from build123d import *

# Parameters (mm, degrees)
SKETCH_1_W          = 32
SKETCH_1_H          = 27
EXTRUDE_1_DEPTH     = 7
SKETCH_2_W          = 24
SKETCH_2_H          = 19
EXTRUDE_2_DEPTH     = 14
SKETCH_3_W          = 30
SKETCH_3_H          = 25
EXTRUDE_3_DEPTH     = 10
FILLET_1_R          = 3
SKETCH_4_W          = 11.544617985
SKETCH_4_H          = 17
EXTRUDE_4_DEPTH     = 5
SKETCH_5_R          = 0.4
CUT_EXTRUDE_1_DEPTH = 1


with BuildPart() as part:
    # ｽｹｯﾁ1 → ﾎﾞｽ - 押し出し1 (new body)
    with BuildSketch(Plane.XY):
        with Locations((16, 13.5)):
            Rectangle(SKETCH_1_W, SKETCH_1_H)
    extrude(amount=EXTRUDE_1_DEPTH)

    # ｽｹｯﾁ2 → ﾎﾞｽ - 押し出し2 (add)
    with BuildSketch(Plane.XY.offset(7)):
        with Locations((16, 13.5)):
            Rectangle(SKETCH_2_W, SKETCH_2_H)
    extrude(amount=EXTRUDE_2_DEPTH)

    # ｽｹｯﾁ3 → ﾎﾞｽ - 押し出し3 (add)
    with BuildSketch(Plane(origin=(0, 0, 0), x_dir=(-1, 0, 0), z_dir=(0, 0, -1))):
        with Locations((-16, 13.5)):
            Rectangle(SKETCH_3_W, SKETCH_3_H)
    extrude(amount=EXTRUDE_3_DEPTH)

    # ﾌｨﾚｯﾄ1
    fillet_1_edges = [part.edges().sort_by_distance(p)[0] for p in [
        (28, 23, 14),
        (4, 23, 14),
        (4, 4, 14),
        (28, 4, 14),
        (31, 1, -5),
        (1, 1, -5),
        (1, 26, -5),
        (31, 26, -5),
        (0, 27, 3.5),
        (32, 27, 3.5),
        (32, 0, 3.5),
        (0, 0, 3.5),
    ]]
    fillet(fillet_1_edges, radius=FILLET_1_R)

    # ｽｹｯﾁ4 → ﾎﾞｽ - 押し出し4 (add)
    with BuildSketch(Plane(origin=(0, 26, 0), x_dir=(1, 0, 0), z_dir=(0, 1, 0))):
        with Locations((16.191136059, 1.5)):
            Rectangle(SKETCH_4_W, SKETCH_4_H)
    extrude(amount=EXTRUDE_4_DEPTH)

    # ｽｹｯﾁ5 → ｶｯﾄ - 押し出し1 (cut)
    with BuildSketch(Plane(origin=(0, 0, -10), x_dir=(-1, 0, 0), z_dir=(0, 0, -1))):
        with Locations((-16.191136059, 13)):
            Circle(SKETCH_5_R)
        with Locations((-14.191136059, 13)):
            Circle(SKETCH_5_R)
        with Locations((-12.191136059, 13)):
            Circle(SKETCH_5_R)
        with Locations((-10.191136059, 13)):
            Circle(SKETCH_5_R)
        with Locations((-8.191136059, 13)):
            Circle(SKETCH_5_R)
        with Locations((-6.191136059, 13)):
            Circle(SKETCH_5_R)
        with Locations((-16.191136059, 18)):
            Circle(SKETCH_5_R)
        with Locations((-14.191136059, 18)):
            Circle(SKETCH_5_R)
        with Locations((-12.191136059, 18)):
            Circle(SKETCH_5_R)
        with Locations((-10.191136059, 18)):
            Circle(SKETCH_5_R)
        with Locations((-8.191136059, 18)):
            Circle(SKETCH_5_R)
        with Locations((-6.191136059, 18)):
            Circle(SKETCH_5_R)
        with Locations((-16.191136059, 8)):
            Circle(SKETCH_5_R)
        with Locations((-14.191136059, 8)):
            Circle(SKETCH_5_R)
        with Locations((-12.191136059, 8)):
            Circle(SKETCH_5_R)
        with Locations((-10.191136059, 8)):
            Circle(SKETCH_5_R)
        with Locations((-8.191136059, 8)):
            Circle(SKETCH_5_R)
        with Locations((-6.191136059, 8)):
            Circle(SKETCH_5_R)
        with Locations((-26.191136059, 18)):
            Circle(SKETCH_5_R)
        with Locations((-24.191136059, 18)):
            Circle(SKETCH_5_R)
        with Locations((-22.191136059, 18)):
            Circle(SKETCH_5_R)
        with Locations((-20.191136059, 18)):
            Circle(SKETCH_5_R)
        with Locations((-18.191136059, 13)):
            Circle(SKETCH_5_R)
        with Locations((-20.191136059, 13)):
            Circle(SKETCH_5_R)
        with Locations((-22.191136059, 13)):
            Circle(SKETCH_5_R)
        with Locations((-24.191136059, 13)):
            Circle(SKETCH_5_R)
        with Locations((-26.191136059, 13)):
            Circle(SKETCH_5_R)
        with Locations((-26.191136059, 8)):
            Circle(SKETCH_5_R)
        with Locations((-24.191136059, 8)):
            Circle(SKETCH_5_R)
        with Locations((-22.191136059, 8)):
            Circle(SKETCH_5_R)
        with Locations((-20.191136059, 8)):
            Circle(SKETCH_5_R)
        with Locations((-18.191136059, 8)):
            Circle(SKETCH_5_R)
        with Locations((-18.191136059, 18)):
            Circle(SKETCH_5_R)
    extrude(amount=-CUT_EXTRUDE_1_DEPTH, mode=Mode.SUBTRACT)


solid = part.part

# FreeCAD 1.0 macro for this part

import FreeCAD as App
import Part
import Sketcher
from FreeCAD import Vector
Q = App.Units.Quantity


def edges_at(feature, points):
    """Names of the edges that pass closest to the given points."""
    edges = feature.Shape.Edges
    near = lambda p: min(range(len(edges)), key=lambda i: edges[i].distToShape(Part.Vertex(*p))[0])
    return sorted({f"Edge{near(p) + 1}" for p in points})

doc = App.newDocument("Part")
body = doc.addObject("PartDesign::Body", "Body")

# Sketch on XY plane
sketch1 = body.newObject("Sketcher::SketchObject", "Sketch")
sketch1.AttachmentSupport = (doc.getObject("XY_Plane"), [""])
sketch1.MapMode = "FlatFace"
sketch1.addGeometry([
    Part.LineSegment(Vector(0, 27, 0), Vector(0, 0, 0)),
    Part.LineSegment(Vector(0, 0, 0), Vector(32, 0, 0)),
    Part.LineSegment(Vector(32, 0, 0), Vector(32, 27, 0)),
    Part.LineSegment(Vector(32, 27, 0), Vector(0, 27, 0)),
], False)
sketch1.addConstraint([
    Sketcher.Constraint("Coincident", 0, 2, 1, 1),
    Sketcher.Constraint("Coincident", 1, 2, 2, 1),
    Sketcher.Constraint("Coincident", 2, 2, 3, 1),
    Sketcher.Constraint("Coincident", 3, 2, 0, 1),
    Sketcher.Constraint("Vertical", 0),
    Sketcher.Constraint("Horizontal", 1),
    Sketcher.Constraint("Vertical", 2),
    Sketcher.Constraint("Horizontal", 3),
    Sketcher.Constraint("Coincident", 0, 2, -1, 1),
    Sketcher.Constraint("DistanceX", 1, 1, 1, 2, Q("32 mm")),
    Sketcher.Constraint("DistanceY", 0, 2, 0, 1, Q("27 mm")),
])
pad1 = body.newObject("PartDesign::Pad", "Pad")
pad1.Profile = sketch1
pad1.Length = 7

# Sketch on XY plane
sketch2 = body.newObject("Sketcher::SketchObject", "Sketch001")
sketch2.AttachmentSupport = (doc.getObject("XY_Plane"), [""])
sketch2.MapMode = "FlatFace"
sketch2.AttachmentOffset = App.Placement(Vector(0, 0, 7), App.Rotation())
sketch2.addGeometry([
    Part.LineSegment(Vector(4, 23, 0), Vector(4, 4, 0)),
    Part.LineSegment(Vector(4, 4, 0), Vector(28, 4, 0)),
    Part.LineSegment(Vector(28, 4, 0), Vector(28, 23, 0)),
    Part.LineSegment(Vector(28, 23, 0), Vector(4, 23, 0)),
], False)
sketch2.addConstraint([
    Sketcher.Constraint("Coincident", 0, 2, 1, 1),
    Sketcher.Constraint("Coincident", 1, 2, 2, 1),
    Sketcher.Constraint("Coincident", 2, 2, 3, 1),
    Sketcher.Constraint("Coincident", 3, 2, 0, 1),
    Sketcher.Constraint("Vertical", 0),
    Sketcher.Constraint("Horizontal", 1),
    Sketcher.Constraint("Vertical", 2),
    Sketcher.Constraint("Horizontal", 3),
    Sketcher.Constraint("DistanceX", 1, 1, 1, 2, Q("24 mm")),
    Sketcher.Constraint("DistanceY", 0, 2, 0, 1, Q("19 mm")),
    Sketcher.Constraint("DistanceX", -1, 1, 0, 2, Q("4 mm")),
    Sketcher.Constraint("DistanceY", -1, 1, 0, 2, Q("4 mm")),
])
pad2 = body.newObject("PartDesign::Pad", "Pad001")
pad2.Profile = sketch2
pad2.Length = 14

# Sketch on XY plane
sketch3 = body.newObject("Sketcher::SketchObject", "Sketch002")
sketch3.AttachmentSupport = (doc.getObject("XY_Plane"), [""])
sketch3.MapMode = "FlatFace"
sketch3.addGeometry([
    Part.LineSegment(Vector(31, 26, 0), Vector(31, 1, 0)),
    Part.LineSegment(Vector(31, 1, 0), Vector(1, 1, 0)),
    Part.LineSegment(Vector(1, 1, 0), Vector(1, 26, 0)),
    Part.LineSegment(Vector(1, 26, 0), Vector(31, 26, 0)),
], False)
sketch3.addConstraint([
    Sketcher.Constraint("Coincident", 0, 2, 1, 1),
    Sketcher.Constraint("Coincident", 1, 2, 2, 1),
    Sketcher.Constraint("Coincident", 2, 2, 3, 1),
    Sketcher.Constraint("Coincident", 3, 2, 0, 1),
    Sketcher.Constraint("Vertical", 0),
    Sketcher.Constraint("Horizontal", 1),
    Sketcher.Constraint("Vertical", 2),
    Sketcher.Constraint("Horizontal", 3),
    Sketcher.Constraint("DistanceX", 1, 2, 1, 1, Q("30 mm")),
    Sketcher.Constraint("DistanceY", 0, 2, 0, 1, Q("25 mm")),
    Sketcher.Constraint("DistanceX", -1, 1, 0, 2, Q("31 mm")),
    Sketcher.Constraint("DistanceY", -1, 1, 0, 2, Q("1 mm")),
])
pad3 = body.newObject("PartDesign::Pad", "Pad002")
pad3.Profile = sketch3
pad3.Length = 10
pad3.Reversed = True
doc.recompute()

fillet = body.newObject("PartDesign::Fillet", "Fillet")
fillet.Base = (pad3, edges_at(pad3, [
    (28, 23, 14),
    (4, 23, 14),
    (4, 4, 14),
    (28, 4, 14),
    (31, 1, -5),
    (1, 1, -5),
    (1, 26, -5),
    (31, 26, -5),
    (0, 27, 3.5),
    (32, 27, 3.5),
    (32, 0, 3.5),
    (0, 0, 3.5),
]))
fillet.Radius = 3

# Sketch on XZ plane
sketch4 = body.newObject("Sketcher::SketchObject", "Sketch003")
sketch4.AttachmentSupport = (doc.getObject("XZ_Plane"), [""])
sketch4.MapMode = "FlatFace"
sketch4.AttachmentOffset = App.Placement(Vector(0, 0, -26), App.Rotation())
sketch4.addGeometry([
    Part.LineSegment(Vector(10, -10, 0), Vector(10, 7, 0)),
    Part.LineSegment(Vector(10, 7, 0), Vector(22, 7, 0)),
    Part.LineSegment(Vector(22, 7, 0), Vector(22, -10, 0)),
    Part.LineSegment(Vector(22, -10, 0), Vector(10, -10, 0)),
], False)
sketch4.addConstraint([
    Sketcher.Constraint("Coincident", 0, 2, 1, 1),
    Sketcher.Constraint("Coincident", 1, 2, 2, 1),
    Sketcher.Constraint("Coincident", 2, 2, 3, 1),
    Sketcher.Constraint("Coincident", 3, 2, 0, 1),
    Sketcher.Constraint("Vertical", 0),
    Sketcher.Constraint("Horizontal", 1),
    Sketcher.Constraint("Vertical", 2),
    Sketcher.Constraint("Horizontal", 3),
    Sketcher.Constraint("DistanceY", 0, 1, 0, 2, Q("17 mm")),
    Sketcher.Constraint("DistanceY", -1, 1, 0, 2, Q("7 mm")),
    Sketcher.Constraint("DistanceX", 1, 1, 1, 2, Q("11.544618 mm")),
    Sketcher.Constraint("DistanceX", -1, 1, 0, 2, Q("10.418827 mm")),
])
pad4 = body.newObject("PartDesign::Pad", "Pad003")
pad4.Profile = sketch4
pad4.Length = 5
pad4.Reversed = True

# Sketch on XY plane
sketch5 = body.newObject("Sketcher::SketchObject", "Sketch004")
sketch5.AttachmentSupport = (doc.getObject("XY_Plane"), [""])
sketch5.MapMode = "FlatFace"
sketch5.AttachmentOffset = App.Placement(Vector(0, 0, -10), App.Rotation())
sketch5.addGeometry([
    Part.Circle(Vector(16.19, 13, 0), Vector(0, 0, 1), 0.4),  # 0
    Part.Circle(Vector(14.19, 13, 0), Vector(0, 0, 1), 0.4),  # 1
    Part.Circle(Vector(12.19, 13, 0), Vector(0, 0, 1), 0.4),  # 2
    Part.Circle(Vector(10.19, 13, 0), Vector(0, 0, 1), 0.4),  # 3
    Part.Circle(Vector(8.19, 13, 0), Vector(0, 0, 1), 0.4),  # 4
    Part.Circle(Vector(6.19, 13, 0), Vector(0, 0, 1), 0.4),  # 5
    Part.Circle(Vector(16.19, 18, 0), Vector(0, 0, 1), 0.4),  # 6
    Part.Circle(Vector(14.19, 18, 0), Vector(0, 0, 1), 0.4),  # 7
    Part.Circle(Vector(12.19, 18, 0), Vector(0, 0, 1), 0.4),  # 8
    Part.Circle(Vector(10.19, 18, 0), Vector(0, 0, 1), 0.4),  # 9
    Part.Circle(Vector(8.19, 18, 0), Vector(0, 0, 1), 0.4),  # 10
    Part.Circle(Vector(6.19, 18, 0), Vector(0, 0, 1), 0.4),  # 11
    Part.Circle(Vector(16.19, 8, 0), Vector(0, 0, 1), 0.4),  # 12
    Part.Circle(Vector(14.19, 8, 0), Vector(0, 0, 1), 0.4),  # 13
    Part.Circle(Vector(12.19, 8, 0), Vector(0, 0, 1), 0.4),  # 14
    Part.Circle(Vector(10.19, 8, 0), Vector(0, 0, 1), 0.4),  # 15
    Part.Circle(Vector(8.19, 8, 0), Vector(0, 0, 1), 0.4),  # 16
    Part.Circle(Vector(6.19, 8, 0), Vector(0, 0, 1), 0.4),  # 17
    Part.Circle(Vector(26.19, 18, 0), Vector(0, 0, 1), 0.4),  # 18
    Part.Circle(Vector(24.19, 18, 0), Vector(0, 0, 1), 0.4),  # 19
    Part.Circle(Vector(22.19, 18, 0), Vector(0, 0, 1), 0.4),  # 20
    Part.Circle(Vector(20.19, 18, 0), Vector(0, 0, 1), 0.4),  # 21
    Part.Circle(Vector(18.19, 13, 0), Vector(0, 0, 1), 0.4),  # 22
    Part.Circle(Vector(20.19, 13, 0), Vector(0, 0, 1), 0.4),  # 23
    Part.Circle(Vector(22.19, 13, 0), Vector(0, 0, 1), 0.4),  # 24
    Part.Circle(Vector(24.19, 13, 0), Vector(0, 0, 1), 0.4),  # 25
    Part.Circle(Vector(26.19, 13, 0), Vector(0, 0, 1), 0.4),  # 26
    Part.Circle(Vector(26.19, 8, 0), Vector(0, 0, 1), 0.4),  # 27
    Part.Circle(Vector(24.19, 8, 0), Vector(0, 0, 1), 0.4),  # 28
    Part.Circle(Vector(22.19, 8, 0), Vector(0, 0, 1), 0.4),  # 29
    Part.Circle(Vector(20.19, 8, 0), Vector(0, 0, 1), 0.4),  # 30
    Part.Circle(Vector(18.19, 8, 0), Vector(0, 0, 1), 0.4),  # 31
    Part.Circle(Vector(18.19, 18, 0), Vector(0, 0, 1), 0.4),  # 32
], False)
sketch5.addConstraint([
    Sketcher.Constraint("Equal", 0, 1),
    Sketcher.Constraint("Equal", 1, 2),
    Sketcher.Constraint("Equal", 2, 3),
    Sketcher.Constraint("Equal", 3, 4),
    Sketcher.Constraint("Equal", 4, 5),
    Sketcher.Constraint("Equal", 5, 6),
    Sketcher.Constraint("Equal", 6, 7),
    Sketcher.Constraint("Equal", 7, 8),
    Sketcher.Constraint("Equal", 8, 9),
    Sketcher.Constraint("Equal", 9, 10),
    Sketcher.Constraint("Equal", 10, 11),
    Sketcher.Constraint("Equal", 11, 12),
    Sketcher.Constraint("Equal", 12, 13),
    Sketcher.Constraint("Equal", 13, 14),
    Sketcher.Constraint("Equal", 14, 15),
    Sketcher.Constraint("Equal", 15, 16),
    Sketcher.Constraint("Equal", 16, 17),
    Sketcher.Constraint("Equal", 17, 18),
    Sketcher.Constraint("Equal", 18, 19),
    Sketcher.Constraint("Equal", 19, 20),
    Sketcher.Constraint("Equal", 20, 21),
    Sketcher.Constraint("Equal", 21, 22),
    Sketcher.Constraint("Equal", 22, 23),
    Sketcher.Constraint("Equal", 23, 24),
    Sketcher.Constraint("Equal", 24, 25),
    Sketcher.Constraint("Equal", 25, 26),
    Sketcher.Constraint("Equal", 26, 27),
    Sketcher.Constraint("Equal", 27, 28),
    Sketcher.Constraint("Equal", 28, 29),
    Sketcher.Constraint("Equal", 29, 30),
    Sketcher.Constraint("Equal", 30, 31),
    Sketcher.Constraint("Equal", 31, 32),
    Sketcher.Constraint("Horizontal", 0, 3, 1, 3),
    Sketcher.Constraint("Horizontal", 1, 3, 2, 3),
    Sketcher.Constraint("Horizontal", 2, 3, 3, 3),
    Sketcher.Constraint("Horizontal", 3, 3, 4, 3),
    Sketcher.Constraint("Horizontal", 4, 3, 5, 3),
    Sketcher.Constraint("Horizontal", 6, 3, 7, 3),
    Sketcher.Constraint("Horizontal", 7, 3, 8, 3),
    Sketcher.Constraint("Horizontal", 8, 3, 9, 3),
    Sketcher.Constraint("Horizontal", 9, 3, 10, 3),
    Sketcher.Constraint("Horizontal", 10, 3, 11, 3),
    Sketcher.Constraint("Horizontal", 12, 3, 13, 3),
    Sketcher.Constraint("Horizontal", 13, 3, 14, 3),
    Sketcher.Constraint("Horizontal", 14, 3, 15, 3),
    Sketcher.Constraint("Horizontal", 15, 3, 16, 3),
    Sketcher.Constraint("Horizontal", 16, 3, 17, 3),
    Sketcher.Constraint("Horizontal", 11, 3, 18, 3),
    Sketcher.Constraint("Horizontal", 18, 3, 19, 3),
    Sketcher.Constraint("Horizontal", 19, 3, 20, 3),
    Sketcher.Constraint("Horizontal", 20, 3, 21, 3),
    Sketcher.Constraint("Horizontal", 5, 3, 22, 3),
    Sketcher.Constraint("Horizontal", 22, 3, 23, 3),
    Sketcher.Constraint("Horizontal", 23, 3, 24, 3),
    Sketcher.Constraint("Horizontal", 24, 3, 25, 3),
    Sketcher.Constraint("Horizontal", 25, 3, 26, 3),
    Sketcher.Constraint("Horizontal", 17, 3, 27, 3),
    Sketcher.Constraint("Horizontal", 27, 3, 28, 3),
    Sketcher.Constraint("Horizontal", 28, 3, 29, 3),
    Sketcher.Constraint("Horizontal", 29, 3, 30, 3),
    Sketcher.Constraint("Horizontal", 30, 3, 31, 3),
    Sketcher.Constraint("Horizontal", 21, 3, 32, 3),
    Sketcher.Constraint("Vertical", 0, 3, 6, 3),
    Sketcher.Constraint("Vertical", 1, 3, 7, 3),
    Sketcher.Constraint("Vertical", 2, 3, 8, 3),
    Sketcher.Constraint("Vertical", 3, 3, 9, 3),
    Sketcher.Constraint("Vertical", 4, 3, 10, 3),
    Sketcher.Constraint("Vertical", 5, 3, 11, 3),
    Sketcher.Constraint("Vertical", 6, 3, 12, 3),
    Sketcher.Constraint("Vertical", 7, 3, 13, 3),
    Sketcher.Constraint("Vertical", 8, 3, 14, 3),
    Sketcher.Constraint("Vertical", 9, 3, 15, 3),
    Sketcher.Constraint("Vertical", 10, 3, 16, 3),
    Sketcher.Constraint("Vertical", 11, 3, 17, 3),
    Sketcher.Constraint("Vertical", 21, 3, 23, 3),
    Sketcher.Constraint("Vertical", 20, 3, 24, 3),
    Sketcher.Constraint("Vertical", 19, 3, 25, 3),
    Sketcher.Constraint("Vertical", 18, 3, 26, 3),
    Sketcher.Constraint("Vertical", 26, 3, 27, 3),
    Sketcher.Constraint("Vertical", 25, 3, 28, 3),
    Sketcher.Constraint("Vertical", 24, 3, 29, 3),
    Sketcher.Constraint("Vertical", 23, 3, 30, 3),
    Sketcher.Constraint("Vertical", 22, 3, 31, 3),
    Sketcher.Constraint("Vertical", 31, 3, 32, 3),
    Sketcher.Constraint("Diameter", 0, Q("0.8 mm")),
    Sketcher.Constraint("DistanceY", -1, 1, 0, 3, Q("13 mm")),
    Sketcher.Constraint("DistanceY", -1, 1, 6, 3, Q("18 mm")),
    Sketcher.Constraint("DistanceY", -1, 1, 12, 3, Q("8 mm")),
    Sketcher.Constraint("DistanceX", 1, 3, 0, 3, Q("2 mm")),
    Sketcher.Constraint("DistanceX", 2, 3, 1, 3, Q("2 mm")),
    Sketcher.Constraint("DistanceX", 3, 3, 2, 3, Q("2 mm")),
    Sketcher.Constraint("DistanceX", 4, 3, 3, 3, Q("2 mm")),
    Sketcher.Constraint("DistanceX", 5, 3, 4, 3, Q("2 mm")),
    Sketcher.Constraint("DistanceX", 6, 3, 18, 3, Q("10 mm")),
    Sketcher.Constraint("DistanceX", 19, 3, 18, 3, Q("2 mm")),
    Sketcher.Constraint("DistanceX", 20, 3, 19, 3, Q("2 mm")),
    Sketcher.Constraint("DistanceX", 21, 3, 20, 3, Q("2 mm")),
    Sketcher.Constraint("DistanceX", 0, 3, 22, 3, Q("2 mm")),
    Sketcher.Constraint("DistanceX", -1, 1, 0, 3, Q("16.191136 mm")),
])
pocket1 = body.newObject("PartDesign::Pocket", "Pocket")
pocket1.Profile = sketch5
pocket1.Length = 1
pocket1.Reversed = True

doc.recompute()
